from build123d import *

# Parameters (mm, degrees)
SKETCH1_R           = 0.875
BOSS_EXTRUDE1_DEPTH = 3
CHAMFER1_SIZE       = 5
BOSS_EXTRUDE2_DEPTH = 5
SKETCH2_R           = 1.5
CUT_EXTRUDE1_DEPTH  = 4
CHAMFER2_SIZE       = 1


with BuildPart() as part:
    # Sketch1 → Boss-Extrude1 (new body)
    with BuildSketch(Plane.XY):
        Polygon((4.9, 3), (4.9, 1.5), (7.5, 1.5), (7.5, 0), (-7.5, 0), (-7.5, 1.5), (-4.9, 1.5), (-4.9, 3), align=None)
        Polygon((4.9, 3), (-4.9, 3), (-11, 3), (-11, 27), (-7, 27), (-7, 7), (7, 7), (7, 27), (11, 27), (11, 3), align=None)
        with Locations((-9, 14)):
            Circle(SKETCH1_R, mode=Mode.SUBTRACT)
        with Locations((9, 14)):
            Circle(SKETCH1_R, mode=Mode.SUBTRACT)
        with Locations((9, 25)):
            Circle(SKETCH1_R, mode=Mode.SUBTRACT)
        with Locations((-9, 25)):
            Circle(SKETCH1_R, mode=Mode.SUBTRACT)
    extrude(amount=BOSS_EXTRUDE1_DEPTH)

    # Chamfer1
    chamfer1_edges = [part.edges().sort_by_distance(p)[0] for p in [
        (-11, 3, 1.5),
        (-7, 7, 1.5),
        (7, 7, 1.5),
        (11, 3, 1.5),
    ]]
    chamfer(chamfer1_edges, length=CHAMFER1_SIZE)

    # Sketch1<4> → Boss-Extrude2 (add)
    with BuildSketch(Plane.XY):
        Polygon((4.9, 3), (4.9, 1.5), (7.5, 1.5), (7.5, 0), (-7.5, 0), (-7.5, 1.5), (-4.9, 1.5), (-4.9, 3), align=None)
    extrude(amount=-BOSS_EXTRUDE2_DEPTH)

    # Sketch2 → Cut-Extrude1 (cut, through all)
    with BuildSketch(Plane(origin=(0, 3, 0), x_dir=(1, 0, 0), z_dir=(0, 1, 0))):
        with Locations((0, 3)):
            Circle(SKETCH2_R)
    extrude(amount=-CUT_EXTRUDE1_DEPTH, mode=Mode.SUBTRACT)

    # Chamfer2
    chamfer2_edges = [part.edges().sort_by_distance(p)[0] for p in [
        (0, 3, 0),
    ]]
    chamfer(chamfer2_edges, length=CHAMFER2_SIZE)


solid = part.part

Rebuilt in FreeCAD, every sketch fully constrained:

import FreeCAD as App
import Part
import Sketcher
from FreeCAD import Vector
Q = App.Units.Quantity


def edges_at(feature, points):
    """Names of the edges that pass closest to the given points."""
    edges = feature.Shape.Edges
    near = lambda p: min(range(len(edges)), key=lambda i: edges[i].distToShape(Part.Vertex(*p))[0])
    return sorted({f"Edge{near(p) + 1}" for p in points})

doc = App.newDocument("Part")
params = doc.addObject("Spreadsheet::Sheet", "Params")
for row, (alias, value) in enumerate([
    ("sketch1_diameter", "1.75 mm"),
    ("sketch1_width", "4 mm"),
    ("sketch1_width2", "14 mm"),
    ("sketch1_width3", "15 mm"),
    ("sketch1_height", "24 mm"),
    ("pad1_length", "3 mm"),
    ("chamfer_size", "5 mm"),
    ("sketch2_width", "15 mm"),
    ("sketch2_width2", "9.8 mm"),
    ("sketch2_height", "1.5 mm"),
    ("pad2_length", "5 mm"),
    ("sketch3_diameter", "3 mm"),
    ("chamfer2_size", "1 mm"),
], start=1):
    params.set(f"A{row}", alias)
    params.set(f"B{row}", "=" + value)
    params.setAlias(f"B{row}", alias)

body = doc.addObject("PartDesign::Body", "Body")

# Sketch on XY plane
sketch1 = body.newObject("Sketcher::SketchObject", "Sketch")
sketch1.AttachmentSupport = (doc.getObject("XY_Plane"), [""])
sketch1.MapMode = "FlatFace"
sketch1.addGeometry(Part.LineSegment(Vector(4.9, 1.5, 0), Vector(4.9, 3, 0)), False)
sketch1.addGeometry(Part.LineSegment(Vector(4.9, 3, 0), Vector(11, 3, 0)), False)
sketch1.addGeometry(Part.LineSegment(Vector(11, 3, 0), Vector(11, 27, 0)), False)
sketch1.addGeometry(Part.LineSegment(Vector(11, 27, 0), Vector(7, 27, 0)), False)
sketch1.addGeometry(Part.LineSegment(Vector(7, 27, 0), Vector(7, 7, 0)), False)
sketch1.addGeometry(Part.LineSegment(Vector(7, 7, 0), Vector(-7, 7, 0)), False)
sketch1.addGeometry(Part.LineSegment(Vector(-7, 7, 0), Vector(-7, 27, 0)), False)
sketch1.addGeometry(Part.LineSegment(Vector(-7, 27, 0), Vector(-11, 27, 0)), False)
sketch1.addGeometry(Part.LineSegment(Vector(-11, 27, 0), Vector(-11, 3, 0)), False)
sketch1.addGeometry(Part.LineSegment(Vector(-11, 3, 0), Vector(-4.9, 3, 0)), False)
sketch1.addGeometry(Part.LineSegment(Vector(-4.9, 3, 0), Vector(-4.9, 1.5, 0)), False)
sketch1.addGeometry(Part.LineSegment(Vector(-4.9, 1.5, 0), Vector(-7.5, 1.5, 0)), False)
sketch1.addGeometry(Part.LineSegment(Vector(-7.5, 1.5, 0), Vector(-7.5, 0, 0)), False)
sketch1.addGeometry(Part.LineSegment(Vector(-7.5, 0, 0), Vector(7.5, 0, 0)), False)
sketch1.addGeometry(Part.LineSegment(Vector(7.5, 0, 0), Vector(7.5, 1.5, 0)), False)
sketch1.addGeometry(Part.LineSegment(Vector(7.5, 1.5, 0), Vector(4.9, 1.5, 0)), False)
sketch1.addGeometry(Part.Circle(Vector(9, 14, 0), Vector(0, 0, 1), 0.875), False)
sketch1.addGeometry(Part.Circle(Vector(-9, 14, 0), Vector(0, 0, 1), 0.875), False)
sketch1.addGeometry(Part.Circle(Vector(9, 25, 0), Vector(0, 0, 1), 0.875), False)
sketch1.addGeometry(Part.Circle(Vector(-9, 25, 0), Vector(0, 0, 1), 0.875), False)
sketch1.addConstraint(Sketcher.Constraint("Coincident", 0, 2, 1, 1))
sketch1.addConstraint(Sketcher.Constraint("Coincident", 1, 2, 2, 1))
sketch1.addConstraint(Sketcher.Constraint("Coincident", 2, 2, 3, 1))
sketch1.addConstraint(Sketcher.Constraint("Coincident", 3, 2, 4, 1))
sketch1.addConstraint(Sketcher.Constraint("Coincident", 4, 2, 5, 1))
sketch1.addConstraint(Sketcher.Constraint("Coincident", 5, 2, 6, 1))
sketch1.addConstraint(Sketcher.Constraint("Coincident", 6, 2, 7, 1))
sketch1.addConstraint(Sketcher.Constraint("Coincident", 7, 2, 8, 1))
sketch1.addConstraint(Sketcher.Constraint("Coincident", 8, 2, 9, 1))
sketch1.addConstraint(Sketcher.Constraint("Coincident", 9, 2, 10, 1))
sketch1.addConstraint(Sketcher.Constraint("Coincident", 10, 2, 11, 1))
sketch1.addConstraint(Sketcher.Constraint("Coincident", 11, 2, 12, 1))
sketch1.addConstraint(Sketcher.Constraint("Coincident", 12, 2, 13, 1))
sketch1.addConstraint(Sketcher.Constraint("Coincident", 13, 2, 14, 1))
sketch1.addConstraint(Sketcher.Constraint("Coincident", 14, 2, 15, 1))
sketch1.addConstraint(Sketcher.Constraint("Coincident", 15, 2, 0, 1))
sketch1.addConstraint(Sketcher.Constraint("Vertical", 0))
sketch1.addConstraint(Sketcher.Constraint("Horizontal", 1))
sketch1.addConstraint(Sketcher.Constraint("Vertical", 2))
sketch1.addConstraint(Sketcher.Constraint("Horizontal", 3))
sketch1.addConstraint(Sketcher.Constraint("Vertical", 4))
sketch1.addConstraint(Sketcher.Constraint("Horizontal", 5))
sketch1.addConstraint(Sketcher.Constraint("Vertical", 6))
sketch1.addConstraint(Sketcher.Constraint("Horizontal", 7))
sketch1.addConstraint(Sketcher.Constraint("Vertical", 8))
sketch1.addConstraint(Sketcher.Constraint("Horizontal", 9))
sketch1.addConstraint(Sketcher.Constraint("Vertical", 10))
sketch1.addConstraint(Sketcher.Constraint("Horizontal", 11))
sketch1.addConstraint(Sketcher.Constraint("Vertical", 12))
sketch1.addConstraint(Sketcher.Constraint("Horizontal", 13))
sketch1.addConstraint(Sketcher.Constraint("Vertical", 14))
sketch1.addConstraint(Sketcher.Constraint("Horizontal", 15))
sketch1.addConstraint(Sketcher.Constraint("Equal", 16, 17))
sketch1.addConstraint(Sketcher.Constraint("Equal", 17, 18))
sketch1.addConstraint(Sketcher.Constraint("Equal", 18, 19))
sketch1.addConstraint(Sketcher.Constraint("Symmetric", 12, 2, 13, 2, -1, 1))
sketch1.addConstraint(Sketcher.Constraint("Symmetric", 16, 3, 17, 3, -2))
sketch1.addConstraint(Sketcher.Constraint("Symmetric", 18, 3, 19, 3, -2))
sketch1.addConstraint(Sketcher.Constraint("Symmetric", 3, 2, 6, 2, -2))
sketch1.addConstraint(Sketcher.Constraint("Symmetric", 1, 2, 8, 2, -2))
sketch1.addConstraint(Sketcher.Constraint("Symmetric", 10, 2, 15, 2, -2))
sketch1.addConstraint(Sketcher.Constraint("Vertical", 16, 3, 18, 3))
sketch1.addConstraint(Sketcher.Constraint("Equal", 10, 12))
sketch1.addConstraint(Sketcher.Constraint("Diameter", 16, Q("1.75 mm")))
sketch1.addConstraint(Sketcher.Constraint("DistanceX", 3, 2, 3, 1, Q("4 mm")))
sketch1.addConstraint(Sketcher.Constraint("DistanceX", 5, 2, 5, 1, Q("14 mm")))
sketch1.addConstraint(Sketcher.Constraint("DistanceX", 13, 1, 13, 2, Q("15 mm")))
sketch1.addConstraint(Sketcher.Constraint("DistanceY", 2, 1, 2, 2, Q("24 mm")))
sketch1.addConstraint(Sketcher.Constraint("DistanceY", 4, 2, 4, 1, Q("20 mm")))
sketch1.addConstraint(Sketcher.Constraint("DistanceX", 1, 1, 1, 2, Q("6.1 mm")))
sketch1.addConstraint(Sketcher.Constraint("DistanceY", 0, 1, 0, 2, Q("1.5 mm")))
sketch1.addConstraint(Sketcher.Constraint("DistanceX", -1, 1, 16, 3, Q("9 mm")))
sketch1.addConstraint(Sketcher.Constraint("DistanceY", -1, 1, 16, 3, Q("14 mm")))
sketch1.addConstraint(Sketcher.Constraint("DistanceY", -1, 1, 18, 3, Q("25 mm")))
sketch1.setExpression("Constraints[43]", "Params.sketch1_diameter")
sketch1.setExpression("Constraints[44]", "Params.sketch1_width")
sketch1.setExpression("Constraints[45]", "Params.sketch1_width2")
sketch1.setExpression("Constraints[46]", "Params.sketch1_width3")
sketch1.setExpression("Constraints[47]", "Params.sketch1_height")
pad1 = body.newObject("PartDesign::Pad", "Pad")
pad1.Profile = sketch1
pad1.setExpression("Length", "Params.pad1_length")
doc.recompute()

chamfer = body.newObject("PartDesign::Chamfer", "Chamfer")
chamfer.Base = (pad1, edges_at(pad1, [
    (-11, 3, 1.5),
    (-7, 7, 1.5),
    (7, 7, 1.5),
    (11, 3, 1.5),
]))
chamfer.setExpression("Size", "Params.chamfer_size")

# Sketch on XY plane
sketch2 = body.newObject("Sketcher::SketchObject", "Sketch001")
sketch2.AttachmentSupport = (doc.getObject("XY_Plane"), [""])
sketch2.MapMode = "FlatFace"
sketch2.addGeometry(Part.LineSegment(Vector(4.9, 1.5, 0), Vector(4.9, 3, 0)), False)
sketch2.addGeometry(Part.LineSegment(Vector(4.9, 3, 0), Vector(-4.9, 3, 0)), False)
sketch2.addGeometry(Part.LineSegment(Vector(-4.9, 3, 0), Vector(-4.9, 1.5, 0)), False)
sketch2.addGeometry(Part.LineSegment(Vector(-4.9, 1.5, 0), Vector(-7.5, 1.5, 0)), False)
sketch2.addGeometry(Part.LineSegment(Vector(-7.5, 1.5, 0), Vector(-7.5, 0, 0)), False)
sketch2.addGeometry(Part.LineSegment(Vector(-7.5, 0, 0), Vector(7.5, 0, 0)), False)
sketch2.addGeometry(Part.LineSegment(Vector(7.5, 0, 0), Vector(7.5, 1.5, 0)), False)
sketch2.addGeometry(Part.LineSegment(Vector(7.5, 1.5, 0), Vector(4.9, 1.5, 0)), False)
sketch2.addConstraint(Sketcher.Constraint("Coincident", 0, 2, 1, 1))
sketch2.addConstraint(Sketcher.Constraint("Coincident", 1, 2, 2, 1))
sketch2.addConstraint(Sketcher.Constraint("Coincident", 2, 2, 3, 1))
sketch2.addConstraint(Sketcher.Constraint("Coincident", 3, 2, 4, 1))
sketch2.addConstraint(Sketcher.Constraint("Coincident", 4, 2, 5, 1))
sketch2.addConstraint(Sketcher.Constraint("Coincident", 5, 2, 6, 1))
sketch2.addConstraint(Sketcher.Constraint("Coincident", 6, 2, 7, 1))
sketch2.addConstraint(Sketcher.Constraint("Coincident", 7, 2, 0, 1))
sketch2.addConstraint(Sketcher.Constraint("Vertical", 0))
sketch2.addConstraint(Sketcher.Constraint("Horizontal", 1))
sketch2.addConstraint(Sketcher.Constraint("Vertical", 2))
sketch2.addConstraint(Sketcher.Constraint("Horizontal", 3))
sketch2.addConstraint(Sketcher.Constraint("Vertical", 4))
sketch2.addConstraint(Sketcher.Constraint("Horizontal", 5))
sketch2.addConstraint(Sketcher.Constraint("Vertical", 6))
sketch2.addConstraint(Sketcher.Constraint("Horizontal", 7))
sketch2.addConstraint(Sketcher.Constraint("Symmetric", 4, 2, 5, 2, -1, 1))
sketch2.addConstraint(Sketcher.Constraint("Symmetric", 2, 2, 7, 2, -2))
sketch2.addConstraint(Sketcher.Constraint("Equal", 2, 4))
sketch2.addConstraint(Sketcher.Constraint("DistanceX", 5, 1, 5, 2, Q("15 mm")))
sketch2.addConstraint(Sketcher.Constraint("DistanceX", 1, 2, 1, 1, Q("9.8 mm")))
sketch2.addConstraint(Sketcher.Constraint("DistanceY", 0, 1, 0, 2, Q("1.5 mm")))
sketch2.setExpression("Constraints[19]", "Params.sketch2_width")
sketch2.setExpression("Constraints[20]", "Params.sketch2_width2")
sketch2.setExpression("Constraints[21]", "Params.sketch2_height")
pad2 = body.newObject("PartDesign::Pad", "Pad001")
pad2.Profile = sketch2
pad2.setExpression("Length", "Params.pad2_length")
pad2.Reversed = True

# Sketch on XZ plane
sketch3 = body.newObject("Sketcher::SketchObject", "Sketch002")
sketch3.AttachmentSupport = (doc.getObject("XZ_Plane"), [""])
sketch3.MapMode = "FlatFace"
sketch3.AttachmentOffset = App.Placement(Vector(0, 0, -3), App.Rotation())
sketch3.addGeometry(Part.Circle(Vector(0, -3, 0), Vector(0, 0, 1), 1.5), False)
sketch3.addConstraint(Sketcher.Constraint("PointOnObject", 0, 3, -2))
sketch3.addConstraint(Sketcher.Constraint("Diameter", 0, Q("3 mm")))
sketch3.addConstraint(Sketcher.Constraint("DistanceY", 0, 3, -1, 1, Q("3 mm")))
sketch3.setExpression("Constraints[1]", "Params.sketch3_diameter")
pocket1 = body.newObject("PartDesign::Pocket", "Pocket")
pocket1.Profile = sketch3
pocket1.Type = "ThroughAll"
pocket1.Reversed = True
doc.recompute()

chamfer2 = body.newObject("PartDesign::Chamfer", "Chamfer001")
chamfer2.Base = (pocket1, edges_at(pocket1, [(0, 3, 0)]))
chamfer2.setExpression("Size", "Params.chamfer2_size")

doc.recompute()
